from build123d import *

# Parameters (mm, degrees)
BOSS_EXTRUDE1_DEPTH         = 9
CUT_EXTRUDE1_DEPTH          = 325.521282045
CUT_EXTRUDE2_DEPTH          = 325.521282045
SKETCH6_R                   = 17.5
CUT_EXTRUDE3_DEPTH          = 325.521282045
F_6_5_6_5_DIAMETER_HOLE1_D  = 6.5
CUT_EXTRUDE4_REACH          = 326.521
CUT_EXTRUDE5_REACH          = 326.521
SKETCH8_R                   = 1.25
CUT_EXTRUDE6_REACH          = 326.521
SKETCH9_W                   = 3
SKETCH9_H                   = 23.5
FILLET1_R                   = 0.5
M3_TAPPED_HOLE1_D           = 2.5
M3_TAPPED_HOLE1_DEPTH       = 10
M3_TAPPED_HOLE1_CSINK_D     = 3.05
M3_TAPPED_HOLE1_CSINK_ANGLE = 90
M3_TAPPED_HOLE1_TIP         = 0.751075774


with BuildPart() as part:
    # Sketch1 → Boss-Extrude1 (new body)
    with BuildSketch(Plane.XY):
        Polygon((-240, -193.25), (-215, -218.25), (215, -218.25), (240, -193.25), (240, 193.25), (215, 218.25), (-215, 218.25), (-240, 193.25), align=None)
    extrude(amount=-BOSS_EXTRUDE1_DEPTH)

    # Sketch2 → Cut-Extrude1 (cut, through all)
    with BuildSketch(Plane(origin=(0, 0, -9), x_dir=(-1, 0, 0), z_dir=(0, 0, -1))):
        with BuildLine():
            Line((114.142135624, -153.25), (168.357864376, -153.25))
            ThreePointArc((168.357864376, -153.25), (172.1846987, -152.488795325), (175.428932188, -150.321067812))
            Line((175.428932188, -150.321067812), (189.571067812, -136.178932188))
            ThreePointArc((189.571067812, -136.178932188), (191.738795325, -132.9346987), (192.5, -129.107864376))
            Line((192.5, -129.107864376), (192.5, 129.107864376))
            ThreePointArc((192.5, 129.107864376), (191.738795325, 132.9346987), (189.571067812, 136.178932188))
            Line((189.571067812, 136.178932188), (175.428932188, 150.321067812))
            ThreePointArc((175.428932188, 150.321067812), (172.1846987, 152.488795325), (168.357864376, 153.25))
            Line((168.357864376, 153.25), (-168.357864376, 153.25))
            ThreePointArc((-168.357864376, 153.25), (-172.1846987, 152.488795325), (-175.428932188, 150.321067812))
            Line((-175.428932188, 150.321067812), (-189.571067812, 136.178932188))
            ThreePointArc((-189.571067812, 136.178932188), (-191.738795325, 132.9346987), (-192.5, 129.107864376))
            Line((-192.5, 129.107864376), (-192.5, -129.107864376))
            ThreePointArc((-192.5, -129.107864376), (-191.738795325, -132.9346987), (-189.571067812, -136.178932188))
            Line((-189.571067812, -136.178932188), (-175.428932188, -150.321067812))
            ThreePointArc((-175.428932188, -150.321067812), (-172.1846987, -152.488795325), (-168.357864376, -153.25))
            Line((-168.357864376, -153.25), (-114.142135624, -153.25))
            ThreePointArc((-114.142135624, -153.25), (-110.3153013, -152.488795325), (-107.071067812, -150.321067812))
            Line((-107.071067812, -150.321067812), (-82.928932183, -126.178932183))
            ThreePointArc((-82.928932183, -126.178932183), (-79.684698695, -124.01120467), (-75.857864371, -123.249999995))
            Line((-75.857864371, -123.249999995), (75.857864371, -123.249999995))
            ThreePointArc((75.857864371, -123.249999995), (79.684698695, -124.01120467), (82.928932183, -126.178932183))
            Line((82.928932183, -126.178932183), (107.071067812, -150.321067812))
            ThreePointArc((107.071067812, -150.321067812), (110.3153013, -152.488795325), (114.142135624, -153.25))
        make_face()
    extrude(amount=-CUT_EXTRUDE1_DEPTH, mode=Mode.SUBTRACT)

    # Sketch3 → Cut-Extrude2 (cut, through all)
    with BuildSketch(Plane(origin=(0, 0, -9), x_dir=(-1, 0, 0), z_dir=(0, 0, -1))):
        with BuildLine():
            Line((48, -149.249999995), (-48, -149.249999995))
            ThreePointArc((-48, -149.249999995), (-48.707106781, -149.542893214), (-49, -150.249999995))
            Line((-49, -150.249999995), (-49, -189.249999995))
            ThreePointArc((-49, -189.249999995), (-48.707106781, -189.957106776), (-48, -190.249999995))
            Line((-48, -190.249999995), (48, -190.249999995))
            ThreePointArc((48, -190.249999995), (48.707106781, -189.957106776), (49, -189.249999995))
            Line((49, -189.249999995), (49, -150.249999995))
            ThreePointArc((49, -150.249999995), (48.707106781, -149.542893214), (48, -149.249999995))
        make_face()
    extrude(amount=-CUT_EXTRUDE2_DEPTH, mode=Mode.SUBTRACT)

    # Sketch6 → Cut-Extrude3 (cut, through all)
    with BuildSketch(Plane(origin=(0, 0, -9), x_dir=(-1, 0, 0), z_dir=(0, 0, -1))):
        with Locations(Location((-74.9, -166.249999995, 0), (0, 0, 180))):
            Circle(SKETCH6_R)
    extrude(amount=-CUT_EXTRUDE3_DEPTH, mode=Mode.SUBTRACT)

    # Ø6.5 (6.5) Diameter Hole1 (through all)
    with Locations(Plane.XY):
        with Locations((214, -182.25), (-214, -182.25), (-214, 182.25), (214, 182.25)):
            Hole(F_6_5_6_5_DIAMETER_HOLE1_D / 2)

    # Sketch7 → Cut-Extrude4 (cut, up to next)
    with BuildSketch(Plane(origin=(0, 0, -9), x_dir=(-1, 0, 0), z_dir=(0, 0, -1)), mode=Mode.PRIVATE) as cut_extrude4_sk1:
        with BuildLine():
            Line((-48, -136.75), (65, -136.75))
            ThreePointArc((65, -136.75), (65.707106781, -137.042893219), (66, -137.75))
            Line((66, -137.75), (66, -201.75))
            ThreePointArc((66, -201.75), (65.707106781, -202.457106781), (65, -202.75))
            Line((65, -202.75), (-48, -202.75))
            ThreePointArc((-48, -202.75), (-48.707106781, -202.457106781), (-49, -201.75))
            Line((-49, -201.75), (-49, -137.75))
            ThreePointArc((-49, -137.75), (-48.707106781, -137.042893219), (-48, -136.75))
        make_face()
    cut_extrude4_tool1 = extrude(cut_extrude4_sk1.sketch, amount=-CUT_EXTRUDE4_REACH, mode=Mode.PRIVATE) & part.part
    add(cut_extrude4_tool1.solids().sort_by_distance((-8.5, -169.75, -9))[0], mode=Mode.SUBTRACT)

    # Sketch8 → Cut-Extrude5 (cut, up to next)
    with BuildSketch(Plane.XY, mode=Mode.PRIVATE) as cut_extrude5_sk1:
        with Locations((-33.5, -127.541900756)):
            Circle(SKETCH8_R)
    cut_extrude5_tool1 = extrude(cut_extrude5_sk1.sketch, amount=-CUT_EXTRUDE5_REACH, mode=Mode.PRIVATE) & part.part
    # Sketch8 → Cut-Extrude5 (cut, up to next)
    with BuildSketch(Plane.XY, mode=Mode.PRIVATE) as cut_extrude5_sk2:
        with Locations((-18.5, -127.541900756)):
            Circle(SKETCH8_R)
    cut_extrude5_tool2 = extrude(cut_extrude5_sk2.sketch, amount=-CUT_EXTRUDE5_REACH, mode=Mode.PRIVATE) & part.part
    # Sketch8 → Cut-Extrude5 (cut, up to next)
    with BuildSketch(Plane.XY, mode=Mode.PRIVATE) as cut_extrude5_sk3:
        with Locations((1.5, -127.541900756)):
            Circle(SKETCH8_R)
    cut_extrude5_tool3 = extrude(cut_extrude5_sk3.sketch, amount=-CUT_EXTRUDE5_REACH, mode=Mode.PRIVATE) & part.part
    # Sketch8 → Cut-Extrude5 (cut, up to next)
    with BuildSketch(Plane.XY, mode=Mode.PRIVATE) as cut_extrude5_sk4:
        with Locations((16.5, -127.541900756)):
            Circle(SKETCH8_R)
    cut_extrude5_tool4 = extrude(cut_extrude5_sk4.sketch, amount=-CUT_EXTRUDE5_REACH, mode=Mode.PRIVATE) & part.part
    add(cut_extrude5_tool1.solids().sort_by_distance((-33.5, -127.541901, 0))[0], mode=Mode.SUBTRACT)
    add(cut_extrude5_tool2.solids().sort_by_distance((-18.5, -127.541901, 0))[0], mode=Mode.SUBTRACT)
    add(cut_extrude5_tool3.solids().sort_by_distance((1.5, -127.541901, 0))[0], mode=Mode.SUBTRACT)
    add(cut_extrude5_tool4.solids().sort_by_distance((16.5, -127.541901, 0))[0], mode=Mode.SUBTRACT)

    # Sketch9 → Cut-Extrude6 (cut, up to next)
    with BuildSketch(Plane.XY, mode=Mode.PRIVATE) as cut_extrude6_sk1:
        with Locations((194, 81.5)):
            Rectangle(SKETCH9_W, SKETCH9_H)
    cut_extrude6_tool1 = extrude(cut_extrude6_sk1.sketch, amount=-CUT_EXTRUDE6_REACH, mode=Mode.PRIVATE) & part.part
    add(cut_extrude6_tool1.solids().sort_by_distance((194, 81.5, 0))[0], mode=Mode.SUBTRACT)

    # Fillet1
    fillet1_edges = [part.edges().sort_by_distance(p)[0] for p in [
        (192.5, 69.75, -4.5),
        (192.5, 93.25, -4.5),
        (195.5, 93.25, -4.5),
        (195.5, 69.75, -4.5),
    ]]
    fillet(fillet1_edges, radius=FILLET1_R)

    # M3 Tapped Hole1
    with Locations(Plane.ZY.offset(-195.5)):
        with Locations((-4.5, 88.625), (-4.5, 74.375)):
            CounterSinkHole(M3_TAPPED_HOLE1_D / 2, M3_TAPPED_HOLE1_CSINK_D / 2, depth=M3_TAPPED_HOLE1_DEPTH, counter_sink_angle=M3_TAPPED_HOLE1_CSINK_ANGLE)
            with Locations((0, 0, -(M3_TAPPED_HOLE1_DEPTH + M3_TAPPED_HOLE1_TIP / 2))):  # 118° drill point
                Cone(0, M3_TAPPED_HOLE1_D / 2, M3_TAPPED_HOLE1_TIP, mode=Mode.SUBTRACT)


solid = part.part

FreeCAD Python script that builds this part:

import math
import FreeCAD as App
import Part
import Sketcher

V = App.Vector
Q = App.Units.Quantity


def edges_at(feature, points):
    """Names of the edges that pass closest to the given points."""
    edges = feature.Shape.Edges
    near = lambda p: min(range(len(edges)), key=lambda i: edges[i].distToShape(Part.Vertex(*p))[0])
    return sorted({f"Edge{near(p) + 1}" for p in points})

doc = App.newDocument("Part")
body = doc.addObject("PartDesign::Body", "Body")

# Sketch on XY plane
sketch1 = doc.addObject("Sketcher::SketchObject", "Sketch")
body.addObject(sketch1)
sketch1.AttachmentSupport = (doc.XY_Plane, [""])
sketch1.MapMode = "FlatFace"
sketch1.addGeometry([
    Part.LineSegment(V(-240, -193, 0), V(-215, -218, 0)),  # 0
    Part.LineSegment(V(-215, -218, 0), V(215, -218, 0)),  # 1
    Part.LineSegment(V(215, -218, 0), V(240, -193, 0)),  # 2
    Part.LineSegment(V(240, -193, 0), V(240, 193, 0)),  # 3
    Part.LineSegment(V(240, 193, 0), V(215, 218, 0)),  # 4
    Part.LineSegment(V(215, 218, 0), V(-215, 218, 0)),  # 5
    Part.LineSegment(V(-215, 218, 0), V(-240, 193, 0)),  # 6
    Part.LineSegment(V(-240, 193, 0), V(-240, -193, 0)),  # 7
], False)
sketch1.addConstraint([
    Sketcher.Constraint("Coincident", 0, 2, 1, 1),
    Sketcher.Constraint("Coincident", 1, 2, 2, 1),
    Sketcher.Constraint("Coincident", 2, 2, 3, 1),
    Sketcher.Constraint("Coincident", 3, 2, 4, 1),
    Sketcher.Constraint("Coincident", 4, 2, 5, 1),
    Sketcher.Constraint("Coincident", 5, 2, 6, 1),
    Sketcher.Constraint("Coincident", 6, 2, 7, 1),
    Sketcher.Constraint("Coincident", 7, 2, 0, 1),
    Sketcher.Constraint("Horizontal", 1),
    Sketcher.Constraint("Vertical", 3),
    Sketcher.Constraint("Horizontal", 5),
    Sketcher.Constraint("Vertical", 7),
    Sketcher.Constraint("Symmetric", 0, 2, 4, 2, -1, 1),
    Sketcher.Constraint("Symmetric", 2, 2, 6, 2, -1, 1),
    Sketcher.Constraint("Perpendicular", 0, 2),
    Sketcher.Constraint("Perpendicular", 2, 4),
    Sketcher.Constraint("Perpendicular", 4, 6),
    Sketcher.Constraint("Horizontal", 3, 2, 6, 2),
    Sketcher.Constraint("Vertical", 1, 2, 4, 2),
    Sketcher.Constraint("DistanceX", 1, 1, 1, 2, Q("430 mm")),
    Sketcher.Constraint("DistanceY", 3, 1, 3, 2, Q("386.5 mm")),
    Sketcher.Constraint("DistanceX", -1, 1, 2, 2, Q("240 mm")),
])
pad1 = doc.addObject("PartDesign::Pad", "Pad")
body.addObject(pad1)
pad1.Profile = sketch1
pad1.Length = 9
pad1.Reversed = True

# Sketch on XY plane
sketch2 = doc.addObject("Sketcher::SketchObject", "Sketch001")
body.addObject(sketch2)
sketch2.AttachmentSupport = (doc.XY_Plane, [""])
sketch2.MapMode = "FlatFace"
sketch2.AttachmentOffset = App.Placement(V(0, 0, -9), App.Rotation())
sketch2.addGeometry([
    Part.LineSegment(V(-114, -153, 0), V(-168, -153, 0)),  # 0
    Part.ArcOfCircle(Part.Circle(V(-168, -143, 0), V(0, 0, 1), 10), math.radians(-135), math.radians(-90)),  # 1
    Part.LineSegment(V(-175, -150, 0), V(-190, -136, 0)),  # 2
    Part.ArcOfCircle(Part.Circle(V(-182, -129, 0), V(0, 0, 1), 10), math.radians(180), math.radians(225)),  # 3
    Part.LineSegment(V(-192, -129, 0), V(-192, 129, 0)),  # 4
    Part.ArcOfCircle(Part.Circle(V(-182, 129, 0), V(0, 0, 1), 10), math.radians(135), math.radians(180)),  # 5
    Part.LineSegment(V(-190, 136, 0), V(-175, 150, 0)),  # 6
    Part.ArcOfCircle(Part.Circle(V(-168, 143, 0), V(0, 0, 1), 10), math.radians(90), math.radians(135)),  # 7
    Part.LineSegment(V(-168, 153, 0), V(168, 153, 0)),  # 8
    Part.ArcOfCircle(Part.Circle(V(168, 143, 0), V(0, 0, 1), 10), math.radians(45), math.radians(90)),  # 9
    Part.LineSegment(V(175, 150, 0), V(190, 136, 0)),  # 10
    Part.ArcOfCircle(Part.Circle(V(182, 129, 0), V(0, 0, 1), 10), math.radians(0), math.radians(45)),  # 11
    Part.LineSegment(V(192, 129, 0), V(192, -129, 0)),  # 12
    Part.ArcOfCircle(Part.Circle(V(182, -129, 0), V(0, 0, 1), 10), math.radians(-45), math.radians(0)),  # 13
    Part.LineSegment(V(190, -136, 0), V(175, -150, 0)),  # 14
    Part.ArcOfCircle(Part.Circle(V(168, -143, 0), V(0, 0, 1), 10), math.radians(-90), math.radians(-45)),  # 15
    Part.LineSegment(V(168, -153, 0), V(114, -153, 0)),  # 16
    Part.ArcOfCircle(Part.Circle(V(114, -143, 0), V(0, 0, 1), 10), math.radians(-135), math.radians(-90)),  # 17
    Part.LineSegment(V(107, -150, 0), V(83, -126, 0)),  # 18
    Part.ArcOfCircle(Part.Circle(V(76, -133, 0), V(0, 0, 1), 10), math.radians(45), math.radians(90)),  # 19
    Part.LineSegment(V(76, -123, 0), V(-76, -123, 0)),  # 20
    Part.ArcOfCircle(Part.Circle(V(-76, -133, 0), V(0, 0, 1), 10), math.radians(90), math.radians(135)),  # 21
    Part.LineSegment(V(-83, -126, 0), V(-107, -150, 0)),  # 22
    Part.ArcOfCircle(Part.Circle(V(-114, -143, 0), V(0, 0, 1), 10), math.radians(-90), math.radians(-45)),  # 23
], False)
sketch2.addConstraint([
    Sketcher.Constraint("Tangent", 0, 2, 1, 2),
    Sketcher.Constraint("Tangent", 1, 1, 2, 1),
    Sketcher.Constraint("Tangent", 2, 2, 3, 2),
    Sketcher.Constraint("Tangent", 3, 1, 4, 1),
    Sketcher.Constraint("Tangent", 4, 2, 5, 2),
    Sketcher.Constraint("Tangent", 5, 1, 6, 1),
    Sketcher.Constraint("Tangent", 6, 2, 7, 2),
    Sketcher.Constraint("Tangent", 7, 1, 8, 1),
    Sketcher.Constraint("Tangent", 8, 2, 9, 2),
    Sketcher.Constraint("Tangent", 9, 1, 10, 1),
    Sketcher.Constraint("Tangent", 10, 2, 11, 2),
    Sketcher.Constraint("Tangent", 11, 1, 12, 1),
    Sketcher.Constraint("Tangent", 12, 2, 13, 2),
    Sketcher.Constraint("Tangent", 13, 1, 14, 1),
    Sketcher.Constraint("Tangent", 14, 2, 15, 2),
    Sketcher.Constraint("Tangent", 15, 1, 16, 1),
    Sketcher.Constraint("Tangent", 16, 2, 17, 2),
    Sketcher.Constraint("Tangent", 17, 1, 18, 1),
    Sketcher.Constraint("Tangent", 18, 2, 19, 1),
    Sketcher.Constraint("Tangent", 19, 2, 20, 1),
    Sketcher.Constraint("Tangent", 20, 2, 21, 1),
    Sketcher.Constraint("Tangent", 21, 2, 22, 1),
    Sketcher.Constraint("Tangent", 22, 2, 23, 2),
    Sketcher.Constraint("Tangent", 23, 1, 0, 1),
    Sketcher.Constraint("Horizontal", 0),
    Sketcher.Constraint("Vertical", 4),
    Sketcher.Constraint("Horizontal", 8),
    Sketcher.Constraint("Vertical", 12),
    Sketcher.Constraint("Horizontal", 16),
    Sketcher.Constraint("Horizontal", 20),
    Sketcher.Constraint("Equal", 1, 3),
    Sketcher.Constraint("Equal", 3, 5),
    Sketcher.Constraint("Equal", 5, 7),
    Sketcher.Constraint("Equal", 7, 9),
    Sketcher.Constraint("Equal", 9, 11),
    Sketcher.Constraint("Equal", 11, 13),
    Sketcher.Constraint("Equal", 13, 15),
    Sketcher.Constraint("Equal", 15, 17),
    Sketcher.Constraint("Equal", 17, 19),
    Sketcher.Constraint("Equal", 19, 21),
    Sketcher.Constraint("Equal", 21, 23),
    Sketcher.Constraint("Symmetric", 1, 3, 9, 3, -1, 1),
    Sketcher.Constraint("Symmetric", 3, 3, 11, 3, -1, 1),
    Sketcher.Constraint("Symmetric", 7, 3, 15, 3, -1, 1),
    Sketcher.Constraint("Symmetric", 6, 2, 9, 1, -2),
    Sketcher.Constraint("Symmetric", 18, 2, 21, 2, -2),
    Sketcher.Constraint("Perpendicular", 2, 6),
    Sketcher.Constraint("Perpendicular", 10, 14),
    Sketcher.Constraint("Perpendicular", 14, 18),
    Sketcher.Constraint("Radius", 1, Q("10 mm")),
    Sketcher.Constraint("Distance", 2, Q("20 mm")),
    Sketcher.Constraint("DistanceX", 5, 3, 11, 3, Q("365 mm")),
    Sketcher.Constraint("DistanceY", 17, 3, 19, 3, Q("10 mm")),
    Sketcher.Constraint("DistanceX", 21, 3, 17, 3, Q("190 mm")),
    Sketcher.Constraint("DistanceY", 1, 3, 7, 3, Q("286.5 mm")),
])
pocket1 = doc.addObject("PartDesign::Pocket", "Pocket")
body.addObject(pocket1)
pocket1.Profile = sketch2
pocket1.Type = "ThroughAll"
pocket1.Reversed = True

# Sketch on XY plane
sketch3 = doc.addObject("Sketcher::SketchObject", "Sketch002")
body.addObject(sketch3)
sketch3.AttachmentSupport = (doc.XY_Plane, [""])
sketch3.MapMode = "FlatFace"
sketch3.AttachmentOffset = App.Placement(V(0, 0, -9), App.Rotation())
sketch3.addGeometry([
    Part.LineSegment(V(-48, -149.2, 0), V(48, -149.2, 0)),  # 0
    Part.ArcOfCircle(Part.Circle(V(48, -150.2, 0), V(0, 0, 1), 1), math.radians(0), math.radians(90)),  # 1
    Part.LineSegment(V(49, -150.2, 0), V(49, -189.2, 0)),  # 2
    Part.ArcOfCircle(Part.Circle(V(48, -189.2, 0), V(0, 0, 1), 1), math.radians(-90), math.radians(0)),  # 3
    Part.LineSegment(V(48, -190.2, 0), V(-48, -190.2, 0)),  # 4
    Part.ArcOfCircle(Part.Circle(V(-48, -189.2, 0), V(0, 0, 1), 1), math.radians(-180), math.radians(-90)),  # 5
    Part.LineSegment(V(-49, -189.2, 0), V(-49, -150.2, 0)),  # 6
    Part.ArcOfCircle(Part.Circle(V(-48, -150.2, 0), V(0, 0, 1), 1), math.radians(90), math.radians(180)),  # 7
], False)
sketch3.addConstraint([
    Sketcher.Constraint("Tangent", 0, 2, 1, 2),
    Sketcher.Constraint("Tangent", 1, 1, 2, 1),
    Sketcher.Constraint("Tangent", 2, 2, 3, 2),
    Sketcher.Constraint("Tangent", 3, 1, 4, 1),
    Sketcher.Constraint("Tangent", 4, 2, 5, 2),
    Sketcher.Constraint("Tangent", 5, 1, 6, 1),
    Sketcher.Constraint("Tangent", 6, 2, 7, 2),
    Sketcher.Constraint("Tangent", 7, 1, 0, 1),
    Sketcher.Constraint("Horizontal", 0),
    Sketcher.Constraint("Vertical", 2),
    Sketcher.Constraint("Horizontal", 4),
    Sketcher.Constraint("Vertical", 6),
    Sketcher.Constraint("Equal", 1, 3),
    Sketcher.Constraint("Equal", 3, 5),
    Sketcher.Constraint("Equal", 5, 7),
    Sketcher.Constraint("Radius", 1, Q("1 mm")),
    Sketcher.Constraint("DistanceX", 0, 1, 0, 2, Q("96 mm")),
    Sketcher.Constraint("DistanceY", 2, 2, 2, 1, Q("39 mm")),
    Sketcher.Constraint("DistanceX", -1, 1, 1, 3, Q("48 mm")),
    Sketcher.Constraint("DistanceY", 1, 3, -1, 1, Q("150.25 mm")),
])
pocket2 = doc.addObject("PartDesign::Pocket", "Pocket001")
body.addObject(pocket2)
pocket2.Profile = sketch3
pocket2.Type = "ThroughAll"
pocket2.Reversed = True

# Sketch on XY plane
sketch4 = doc.addObject("Sketcher::SketchObject", "Sketch003")
body.addObject(sketch4)
sketch4.AttachmentSupport = (doc.XY_Plane, [""])
sketch4.MapMode = "FlatFace"
sketch4.AttachmentOffset = App.Placement(V(0, 0, -9), App.Rotation())
sketch4.addGeometry(Part.Circle(V(75, -166, 0), V(0, 0, 1), 18), False)
sketch4.addConstraint([
    Sketcher.Constraint("Diameter", 0, Q("35 mm")),
    Sketcher.Constraint("DistanceX", -1, 1, 0, 3, Q("74.9 mm")),
    Sketcher.Constraint("DistanceY", 0, 3, -1, 1, Q("166.25 mm")),
])
pocket3 = doc.addObject("PartDesign::Pocket", "Pocket002")
body.addObject(pocket3)
pocket3.Profile = sketch4
pocket3.Type = "ThroughAll"
pocket3.Reversed = True

# Sketch on XY plane
sketch5 = doc.addObject("Sketcher::SketchObject", "Sketch004")
body.addObject(sketch5)
sketch5.AttachmentSupport = (doc.XY_Plane, [""])
sketch5.MapMode = "FlatFace"
sketch5.addGeometry([
    Part.Circle(V(214, -182.2, 0), V(0, 0, 1), 3.2),
    Part.Circle(V(-214, -182.2, 0), V(0, 0, 1), 3.2),
    Part.Circle(V(-214, 182.2, 0), V(0, 0, 1), 3.2),
    Part.Circle(V(214, 182.2, 0), V(0, 0, 1), 3.2),
], False)
sketch5.addConstraint([
    Sketcher.Constraint("Equal", 0, 1),
    Sketcher.Constraint("Equal", 1, 2),
    Sketcher.Constraint("Equal", 2, 3),
    Sketcher.Constraint("Symmetric", 0, 3, 2, 3, -1, 1),
    Sketcher.Constraint("Symmetric", 1, 3, 3, 3, -1, 1),
    Sketcher.Constraint("Symmetric", 0, 3, 1, 3, -2),
    Sketcher.Constraint("Diameter", 0, Q("6.5 mm")),
    Sketcher.Constraint("DistanceX", -1, 1, 0, 3, Q("214 mm")),
    Sketcher.Constraint("DistanceY", 1, 3, 2, 3, Q("364.5 mm")),
])
doc.recompute()
hole = doc.addObject("PartDesign::Hole", "Hole")
body.addObject(hole)
hole.Profile = sketch5
hole.ThreadType = "None"
hole.Diameter = 6.5
hole.DepthType = "ThroughAll"

# Sketch on XY plane
sketch6 = doc.addObject("Sketcher::SketchObject", "Sketch005")
body.addObject(sketch6)
sketch6.AttachmentSupport = (doc.XY_Plane, [""])
sketch6.MapMode = "FlatFace"
sketch6.AttachmentOffset = App.Placement(V(0, 0, -9), App.Rotation())
sketch6.addGeometry([
    Part.LineSegment(V(-65, -136.8, 0), V(48, -136.8, 0)),  # 0
    Part.ArcOfCircle(Part.Circle(V(48, -137.8, 0), V(0, 0, 1), 1), math.radians(0), math.radians(90)),  # 1
    Part.LineSegment(V(49, -137.8, 0), V(49, -201.8, 0)),  # 2
    Part.ArcOfCircle(Part.Circle(V(48, -201.7, 0), V(0, 0, 1), 1), math.radians(-90), math.radians(0)),  # 3
    Part.LineSegment(V(48, -202.8, 0), V(-65, -202.8, 0)),  # 4
    Part.ArcOfCircle(Part.Circle(V(-65, -201.7, 0), V(0, 0, 1), 1), math.radians(-180), math.radians(-90)),  # 5
    Part.LineSegment(V(-66, -201.8, 0), V(-66, -137.8, 0)),  # 6
    Part.ArcOfCircle(Part.Circle(V(-65, -137.8, 0), V(0, 0, 1), 1), math.radians(90), math.radians(180)),  # 7
], False)
sketch6.addConstraint([
    Sketcher.Constraint("Tangent", 0, 2, 1, 2),
    Sketcher.Constraint("Tangent", 1, 1, 2, 1),
    Sketcher.Constraint("Tangent", 2, 2, 3, 2),
    Sketcher.Constraint("Tangent", 3, 1, 4, 1),
    Sketcher.Constraint("Tangent", 4, 2, 5, 2),
    Sketcher.Constraint("Tangent", 5, 1, 6, 1),
    Sketcher.Constraint("Tangent", 6, 2, 7, 2),
    Sketcher.Constraint("Tangent", 7, 1, 0, 1),
    Sketcher.Constraint("Horizontal", 0),
    Sketcher.Constraint("Vertical", 2),
    Sketcher.Constraint("Horizontal", 4),
    Sketcher.Constraint("Vertical", 6),
    Sketcher.Constraint("Equal", 1, 3),
    Sketcher.Constraint("Equal", 3, 5),
    Sketcher.Constraint("Equal", 5, 7),
    Sketcher.Constraint("Radius", 1, Q("1 mm")),
    Sketcher.Constraint("DistanceX", 0, 1, 0, 2, Q("113 mm")),
    Sketcher.Constraint("DistanceY", 2, 2, 2, 1, Q("64 mm")),
    Sketcher.Constraint("DistanceX", -1, 1, 1, 3, Q("48 mm")),
    Sketcher.Constraint("DistanceY", 1, 3, -1, 1, Q("137.75 mm")),
])
pocket4 = doc.addObject("PartDesign::Pocket", "Pocket003")
body.addObject(pocket4)
pocket4.Profile = sketch6
pocket4.Length = 9
pocket4.Reversed = True

# Sketch on XY plane
sketch7 = doc.addObject("Sketcher::SketchObject", "Sketch006")
body.addObject(sketch7)
sketch7.AttachmentSupport = (doc.XY_Plane, [""])
sketch7.MapMode = "FlatFace"
sketch7.addGeometry(Part.Circle(V(-33.5, -127.5, 0), V(0, 0, 1), 1.2), False)
sketch7.addConstraint([
    Sketcher.Constraint("Diameter", 0, Q("2.5 mm")),
    Sketcher.Constraint("DistanceX", 0, 3, -1, 1, Q("33.5 mm")),
    Sketcher.Constraint("DistanceY", 0, 3, -1, 1, Q("127.541901 mm")),
])
pocket5 = doc.addObject("PartDesign::Pocket", "Pocket004")
body.addObject(pocket5)
pocket5.Profile = sketch7
pocket5.Type = "UpToFirst"

# Sketch on XY plane
sketch8 = doc.addObject("Sketcher::SketchObject", "Sketch007")
body.addObject(sketch8)
sketch8.AttachmentSupport = (doc.XY_Plane, [""])
sketch8.MapMode = "FlatFace"
sketch8.addGeometry(Part.Circle(V(-18.5, -127.5, 0), V(0, 0, 1), 1.2), False)
sketch8.addConstraint([
    Sketcher.Constraint("Diameter", 0, Q("2.5 mm")),
    Sketcher.Constraint("DistanceX", 0, 3, -1, 1, Q("18.5 mm")),
    Sketcher.Constraint("DistanceY", 0, 3, -1, 1, Q("127.541901 mm")),
])
pocket6 = doc.addObject("PartDesign::Pocket", "Pocket005")
body.addObject(pocket6)
pocket6.Profile = sketch8
pocket6.Type = "UpToFirst"

# Sketch on XY plane
sketch9 = doc.addObject("Sketcher::SketchObject", "Sketch008")
body.addObject(sketch9)
sketch9.AttachmentSupport = (doc.XY_Plane, [""])
sketch9.MapMode = "FlatFace"
sketch9.addGeometry(Part.Circle(V(1.5, -127.5, 0), V(0, 0, 1), 1.2), False)
sketch9.addConstraint([
    Sketcher.Constraint("Diameter", 0, Q("2.5 mm")),
    Sketcher.Constraint("DistanceX", -1, 1, 0, 3, Q("1.5 mm")),
    Sketcher.Constraint("DistanceY", 0, 3, -1, 1, Q("127.541901 mm")),
])
pocket7 = doc.addObject("PartDesign::Pocket", "Pocket006")
body.addObject(pocket7)
pocket7.Profile = sketch9
pocket7.Type = "UpToFirst"

# Sketch on XY plane
sketch10 = doc.addObject("Sketcher::SketchObject", "Sketch009")
body.addObject(sketch10)
sketch10.AttachmentSupport = (doc.XY_Plane, [""])
sketch10.MapMode = "FlatFace"
sketch10.addGeometry(Part.Circle(V(16.5, -127.5, 0), V(0, 0, 1), 1.2), False)
sketch10.addConstraint([
    Sketcher.Constraint("Diameter", 0, Q("2.5 mm")),
    Sketcher.Constraint("DistanceX", -1, 1, 0, 3, Q("16.5 mm")),
    Sketcher.Constraint("DistanceY", 0, 3, -1, 1, Q("127.541901 mm")),
])
pocket8 = doc.addObject("PartDesign::Pocket", "Pocket007")
body.addObject(pocket8)
pocket8.Profile = sketch10
pocket8.Type = "UpToFirst"

# Sketch on XY plane
sketch11 = doc.addObject("Sketcher::SketchObject", "Sketch010")
body.addObject(sketch11)
sketch11.AttachmentSupport = (doc.XY_Plane, [""])
sketch11.MapMode = "FlatFace"
sketch11.addGeometry([
    Part.LineSegment(V(192.5, 93.2, 0), V(192.5, 69.8, 0)),
    Part.LineSegment(V(192.5, 69.8, 0), V(195.5, 69.8, 0)),
    Part.LineSegment(V(195.5, 69.8, 0), V(195.5, 93.2, 0)),
    Part.LineSegment(V(195.5, 93.2, 0), V(192.5, 93.2, 0)),
], False)
sketch11.addConstraint([
    Sketcher.Constraint("Coincident", 0, 2, 1, 1),
    Sketcher.Constraint("Coincident", 1, 2, 2, 1),
    Sketcher.Constraint("Coincident", 2, 2, 3, 1),
    Sketcher.Constraint("Coincident", 3, 2, 0, 1),
    Sketcher.Constraint("Vertical", 0),
    Sketcher.Constraint("Horizontal", 1),
    Sketcher.Constraint("Vertical", 2),
    Sketcher.Constraint("Horizontal", 3),
    Sketcher.Constraint("DistanceX", 1, 1, 1, 2, Q("3 mm")),
    Sketcher.Constraint("DistanceY", 0, 2, 0, 1, Q("23.5 mm")),
    Sketcher.Constraint("DistanceX", -1, 1, 0, 2, Q("192.5 mm")),
    Sketcher.Constraint("DistanceY", -1, 1, 0, 2, Q("69.75 mm")),
])
pocket9 = doc.addObject("PartDesign::Pocket", "Pocket008")
body.addObject(pocket9)
pocket9.Profile = sketch11
pocket9.Type = "UpToFirst"
doc.recompute()

fillet = doc.addObject("PartDesign::Fillet", "Fillet")
body.addObject(fillet)
fillet.Base = (pocket9, edges_at(pocket9, [
    (192.5, 69.75, -4.5),
    (192.5, 93.25, -4.5),
    (195.5, 93.25, -4.5),
    (195.5, 69.75, -4.5),
]))
fillet.Radius = 0.5

# Sketch on YZ plane
sketch12 = doc.addObject("Sketcher::SketchObject", "Sketch011")
body.addObject(sketch12)
sketch12.AttachmentSupport = (doc.YZ_Plane, [""])
sketch12.MapMode = "FlatFace"
sketch12.AttachmentOffset = App.Placement(V(0, 0, 195.5), App.Rotation())
sketch12.addGeometry([
    Part.Circle(V(88.6, -4.5, 0), V(0, 0, 1), 1.2),
    Part.Circle(V(74.4, -4.5, 0), V(0, 0, 1), 1.2),
], False)
sketch12.addConstraint([
    Sketcher.Constraint("Equal", 0, 1),
    Sketcher.Constraint("Horizontal", 0, 3, 1, 3),
    Sketcher.Constraint("Diameter", 0, Q("2.5 mm")),
    Sketcher.Constraint("DistanceY", 0, 3, -1, 1, Q("4.5 mm")),
    Sketcher.Constraint("DistanceX", 1, 3, 0, 3, Q("14.25 mm")),
    Sketcher.Constraint("DistanceX", -1, 1, 0, 3, Q("88.625 mm")),
])
doc.recompute()
hole2 = doc.addObject("PartDesign::Hole", "Hole001")
body.addObject(hole2)
hole2.Profile = sketch12
hole2.ThreadType = "None"
hole2.Diameter = 2.5
hole2.DepthType = "Dimension"
hole2.Depth = 10
hole2.DrillPoint = "Angled"
hole2.DrillPointAngle = 118
hole2.HoleCutType = "Countersink"
hole2.HoleCutDiameter = 3.05
hole2.HoleCutCountersinkAngle = 90
hole2.Reversed = True

doc.recompute()
